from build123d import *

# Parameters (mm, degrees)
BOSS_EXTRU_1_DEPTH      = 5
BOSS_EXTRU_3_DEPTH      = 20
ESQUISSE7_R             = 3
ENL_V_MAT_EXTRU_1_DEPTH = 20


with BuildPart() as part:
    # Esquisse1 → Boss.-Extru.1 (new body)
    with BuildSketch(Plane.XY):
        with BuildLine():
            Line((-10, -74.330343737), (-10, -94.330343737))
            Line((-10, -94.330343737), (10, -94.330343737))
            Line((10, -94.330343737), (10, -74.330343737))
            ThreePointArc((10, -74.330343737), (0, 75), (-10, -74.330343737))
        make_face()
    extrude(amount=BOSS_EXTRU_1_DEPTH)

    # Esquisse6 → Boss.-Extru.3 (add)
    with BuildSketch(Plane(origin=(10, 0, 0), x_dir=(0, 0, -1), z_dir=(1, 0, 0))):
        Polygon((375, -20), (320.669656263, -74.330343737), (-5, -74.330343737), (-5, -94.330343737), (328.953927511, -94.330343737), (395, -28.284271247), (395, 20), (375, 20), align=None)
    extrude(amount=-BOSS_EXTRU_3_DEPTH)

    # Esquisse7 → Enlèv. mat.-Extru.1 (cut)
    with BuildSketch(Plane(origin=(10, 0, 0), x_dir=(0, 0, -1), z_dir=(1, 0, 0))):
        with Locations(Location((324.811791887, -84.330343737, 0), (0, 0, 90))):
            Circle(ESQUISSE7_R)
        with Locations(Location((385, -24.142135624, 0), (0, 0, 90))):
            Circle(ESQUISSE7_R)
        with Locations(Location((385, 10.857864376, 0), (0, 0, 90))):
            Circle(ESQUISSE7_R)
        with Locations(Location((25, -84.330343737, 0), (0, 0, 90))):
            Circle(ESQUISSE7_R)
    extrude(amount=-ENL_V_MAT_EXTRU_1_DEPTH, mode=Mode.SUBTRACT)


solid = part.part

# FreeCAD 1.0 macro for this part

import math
import FreeCAD as App
import Part
import Sketcher

V = App.Vector
Q = App.Units.Quantity

doc = App.newDocument("Part")
body = doc.addObject("PartDesign::Body", "Body")

sketch1 = body.newObject("Sketcher::SketchObject", "Sketch")
sketch1.AttachmentSupport = (doc.getObject("XY_Plane"), [""])
sketch1.MapMode = "FlatFace"
sketch1.addGeometry(Part.LineSegment(V(-10, -74, 0), V(-10, -94, 0)), False)
sketch1.addGeometry(Part.LineSegment(V(-10, -94, 0), V(10, -94, 0)), False)
sketch1.addGeometry(Part.LineSegment(V(10, -94, 0), V(10, -74, 0)), False)
sketch1.addGeometry(Part.ArcOfCircle(Part.Circle(V(0, 0, 0), V(0, 0, 1), 75), math.radians(-82), math.radians(262)), False)
sketch1.addConstraint(Sketcher.Constraint("Coincident", 0, 2, 1, 1))
sketch1.addConstraint(Sketcher.Constraint("Coincident", 1, 2, 2, 1))
sketch1.addConstraint(Sketcher.Constraint("Coincident", 2, 2, 3, 1))
sketch1.addConstraint(Sketcher.Constraint("Coincident", 3, 2, 0, 1))
sketch1.addConstraint(Sketcher.Constraint("Vertical", 0))
sketch1.addConstraint(Sketcher.Constraint("Horizontal", 1))
sketch1.addConstraint(Sketcher.Constraint("Vertical", 2))
sketch1.addConstraint(Sketcher.Constraint("Coincident", 3, 3, -1, 1))
sketch1.addConstraint(Sketcher.Constraint("Horizontal", 2, 2, 3, 2))
sketch1.addConstraint(Sketcher.Constraint("Equal", 1, 0))
sketch1.addConstraint(Sketcher.Constraint("Radius", 3, 75.0))
sketch1.addConstraint(Sketcher.Constraint("DistanceX", 1, 1, 1, 2, 20.0))
pad1 = body.newObject("PartDesign::Pad", "Pad")
pad1.Profile = sketch1
pad1.Length = 5

sketch2 = body.newObject("Sketcher::SketchObject", "Sketch001")
sketch2.AttachmentSupport = (doc.getObject("YZ_Plane"), [""])
sketch2.MapMode = "FlatFace"
sketch2.AttachmentOffset = App.Placement(V(0, 0, 10), App.Rotation())
sketch2.addGeometry(Part.LineSegment(V(-20, -375, 0), V(-74, -321, 0)), False)
sketch2.addGeometry(Part.LineSegment(V(-74, -321, 0), V(-74, 5, 0)), False)
sketch2.addGeometry(Part.LineSegment(V(-74, 5, 0), V(-94, 5, 0)), False)
sketch2.addGeometry(Part.LineSegment(V(-94, 5, 0), V(-94, -329, 0)), False)
sketch2.addGeometry(Part.LineSegment(V(-94, -329, 0), V(-28, -395, 0)), False)
sketch2.addGeometry(Part.LineSegment(V(-28, -395, 0), V(20, -395, 0)), False)
sketch2.addGeometry(Part.LineSegment(V(20, -395, 0), V(20, -375, 0)), False)
sketch2.addGeometry(Part.LineSegment(V(20, -375, 0), V(-20, -375, 0)), False)
sketch2.addConstraint(Sketcher.Constraint("Coincident", 0, 2, 1, 1))
sketch2.addConstraint(Sketcher.Constraint("Coincident", 1, 2, 2, 1))
sketch2.addConstraint(Sketcher.Constraint("Coincident", 2, 2, 3, 1))
sketch2.addConstraint(Sketcher.Constraint("Coincident", 3, 2, 4, 1))
sketch2.addConstraint(Sketcher.Constraint("Coincident", 4, 2, 5, 1))
sketch2.addConstraint(Sketcher.Constraint("Coincident", 5, 2, 6, 1))
sketch2.addConstraint(Sketcher.Constraint("Coincident", 6, 2, 7, 1))
sketch2.addConstraint(Sketcher.Constraint("Coincident", 7, 2, 0, 1))
sketch2.addConstraint(Sketcher.Constraint("Vertical", 1))
sketch2.addConstraint(Sketcher.Constraint("Horizontal", 2))
sketch2.addConstraint(Sketcher.Constraint("Vertical", 3))
sketch2.addConstraint(Sketcher.Constraint("Horizontal", 5))
sketch2.addConstraint(Sketcher.Constraint("Vertical", 6))
sketch2.addConstraint(Sketcher.Constraint("Horizontal", 7))
sketch2.addConstraint(Sketcher.Constraint("Parallel", 0, 4))
sketch2.addConstraint(Sketcher.Constraint("Equal", 2, 6))
sketch2.addConstraint(Sketcher.Constraint("DistanceX", 2, 2, 2, 1, 20.0))
sketch2.addConstraint(Sketcher.Constraint("DistanceX", 7, 2, 7, 1, 40.0))
sketch2.addConstraint(Sketcher.Constraint("Angle", 0, Q("135 deg")))
sketch2.addConstraint(Sketcher.Constraint("DistanceY", -1, 1, 1, 2, 5.0))
sketch2.addConstraint(Sketcher.Constraint("DistanceY", 4, 2, -1, 1, 395.0))
sketch2.addConstraint(Sketcher.Constraint("DistanceX", -1, 1, 5, 2, 20.0))
sketch2.addConstraint(Sketcher.Constraint("DistanceX", 5, 1, 5, 2, 48.284271))
sketch2.addConstraint(Sketcher.Constraint("Distance", 0, 76.834709))
pad2 = body.newObject("PartDesign::Pad", "Pad001")
pad2.Profile = sketch2
pad2.Length = 20
pad2.Reversed = True

sketch3 = body.newObject("Sketcher::SketchObject", "Sketch002")
sketch3.AttachmentSupport = (doc.getObject("YZ_Plane"), [""])
sketch3.MapMode = "FlatFace"
sketch3.AttachmentOffset = App.Placement(V(0, 0, 10), App.Rotation())
sketch3.addGeometry(Part.Circle(V(-84.3, -324.8, 0), V(0, 0, 1), 3), False)
sketch3.addGeometry(Part.Circle(V(-24.1, -385, 0), V(0, 0, 1), 3), False)
sketch3.addGeometry(Part.Circle(V(10.9, -385, 0), V(0, 0, 1), 3), False)
sketch3.addGeometry(Part.Circle(V(-84.3, -25, 0), V(0, 0, 1), 3), False)
sketch3.addConstraint(Sketcher.Constraint("Equal", 0, 1))
sketch3.addConstraint(Sketcher.Constraint("Equal", 1, 2))
sketch3.addConstraint(Sketcher.Constraint("Equal", 2, 3))
sketch3.addConstraint(Sketcher.Constraint("Horizontal", 1, 3, 2, 3))
sketch3.addConstraint(Sketcher.Constraint("Vertical", 0, 3, 3, 3))
sketch3.addConstraint(Sketcher.Constraint("Diameter", 0, 6.0))
sketch3.addConstraint(Sketcher.Constraint("DistanceY", 1, 3, -1, 1, 385.0))
sketch3.addConstraint(Sketcher.Constraint("DistanceY", 3, 3, -1, 1, 25.0))
sketch3.addConstraint(Sketcher.Constraint("DistanceX", 1, 3, 2, 3, 35.0))
sketch3.addConstraint(Sketcher.Constraint("DistanceY", 0, 3, -1, 1, 324.811792))
sketch3.addConstraint(Sketcher.Constraint("DistanceX", 0, 3, 1, 3, 60.188208))
sketch3.addConstraint(Sketcher.Constraint("DistanceX", 0, 3, -1, 1, 84.330344))
pocket1 = body.newObject("PartDesign::Pocket", "Pocket")
pocket1.Profile = sketch3
pocket1.Length = 20

doc.recompute()
